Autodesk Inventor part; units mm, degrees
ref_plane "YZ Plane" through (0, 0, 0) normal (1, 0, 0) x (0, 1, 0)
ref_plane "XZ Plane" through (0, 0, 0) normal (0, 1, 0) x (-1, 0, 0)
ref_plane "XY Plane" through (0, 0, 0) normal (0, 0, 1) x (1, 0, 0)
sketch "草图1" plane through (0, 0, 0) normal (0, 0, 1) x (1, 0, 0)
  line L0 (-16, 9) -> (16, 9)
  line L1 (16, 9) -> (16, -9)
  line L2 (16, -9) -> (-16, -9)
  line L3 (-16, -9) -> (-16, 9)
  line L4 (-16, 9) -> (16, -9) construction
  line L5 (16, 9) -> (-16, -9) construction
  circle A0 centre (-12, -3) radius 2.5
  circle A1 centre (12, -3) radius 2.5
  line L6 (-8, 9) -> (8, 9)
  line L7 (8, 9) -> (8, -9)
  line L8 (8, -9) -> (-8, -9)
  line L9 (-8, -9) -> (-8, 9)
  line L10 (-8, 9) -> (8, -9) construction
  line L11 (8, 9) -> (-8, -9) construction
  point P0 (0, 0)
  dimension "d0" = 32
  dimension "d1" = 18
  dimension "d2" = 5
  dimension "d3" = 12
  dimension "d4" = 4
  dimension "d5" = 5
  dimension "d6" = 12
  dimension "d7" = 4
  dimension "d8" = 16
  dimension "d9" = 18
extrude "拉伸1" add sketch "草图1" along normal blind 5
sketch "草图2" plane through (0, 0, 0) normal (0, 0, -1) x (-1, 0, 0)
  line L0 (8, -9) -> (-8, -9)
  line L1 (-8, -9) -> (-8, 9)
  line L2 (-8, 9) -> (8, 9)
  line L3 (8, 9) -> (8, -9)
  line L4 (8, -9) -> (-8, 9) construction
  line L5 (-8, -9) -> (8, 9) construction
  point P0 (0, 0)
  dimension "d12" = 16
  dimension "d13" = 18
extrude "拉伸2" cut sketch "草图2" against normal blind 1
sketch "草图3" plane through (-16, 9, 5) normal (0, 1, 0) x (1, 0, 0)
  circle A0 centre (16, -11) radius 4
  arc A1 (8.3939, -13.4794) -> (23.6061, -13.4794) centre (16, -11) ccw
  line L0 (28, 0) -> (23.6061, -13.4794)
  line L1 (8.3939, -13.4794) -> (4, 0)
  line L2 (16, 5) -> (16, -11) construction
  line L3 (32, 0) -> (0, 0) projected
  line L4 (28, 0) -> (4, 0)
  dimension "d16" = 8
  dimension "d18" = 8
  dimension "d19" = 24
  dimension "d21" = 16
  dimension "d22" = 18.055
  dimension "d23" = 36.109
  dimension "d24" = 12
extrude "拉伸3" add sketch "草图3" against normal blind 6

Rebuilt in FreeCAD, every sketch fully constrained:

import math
import FreeCAD as App
import Part
import Sketcher

V = App.Vector
Q = App.Units.Quantity


def add_polygon(sketch, points):
    """Adds a closed chain of lines whose ends are joined by coincident constraints."""
    first, n = sketch.GeometryCount, len(points)
    for a, b in zip(points, points[1:] + points[:1]):
        sketch.addGeometry(Part.LineSegment(App.Vector(*a, 0), App.Vector(*b, 0)), False)
    for i in range(n):
        sketch.addConstraint(Sketcher.Constraint("Coincident", first + i, 2, first + (i + 1) % n, 1))

doc = App.newDocument("Part")
body = doc.addObject("PartDesign::Body", "Body")

sketch1 = body.newObject("Sketcher::SketchObject", "Sketch")
sketch1.AttachmentSupport = (doc.getObject("XY_Plane"), [""])
sketch1.MapMode = "FlatFace"
add_polygon(sketch1, [(-16, 9), (-16, -9), (16, -9), (16, 9)])
sketch1.addGeometry(Part.Circle(V(-12, -3, 0), V(0, 0, 1), 2.5), False)
sketch1.addGeometry(Part.Circle(V(12, -3, 0), V(0, 0, 1), 2.5), False)
sketch1.addConstraint([
    Sketcher.Constraint("Vertical", 0),
    Sketcher.Constraint("Horizontal", 1),
    Sketcher.Constraint("Vertical", 2),
    Sketcher.Constraint("Horizontal", 3),
    Sketcher.Constraint("Equal", 4, 5),
    Sketcher.Constraint("Symmetric", 0, 2, 2, 2, -1, 1),
    Sketcher.Constraint("Symmetric", 4, 3, 5, 3, -2),
    Sketcher.Constraint("Diameter", 4, Q("5 mm")),
    Sketcher.Constraint("DistanceX", 1, 1, 1, 2, Q("32 mm")),
    Sketcher.Constraint("DistanceY", 0, 2, 0, 1, Q("18 mm")),
    Sketcher.Constraint("DistanceX", 4, 3, -1, 1, Q("12 mm")),
    Sketcher.Constraint("DistanceY", 5, 3, 2, 2, Q("12 mm")),
])
pad1 = body.newObject("PartDesign::Pad", "Pad")
pad1.Profile = sketch1
pad1.Length = 5

sketch2 = body.newObject("Sketcher::SketchObject", "Sketch001")
sketch2.AttachmentSupport = (doc.getObject("XY_Plane"), [""])
sketch2.MapMode = "FlatFace"
add_polygon(sketch2, [(8, -9), (-8, -9), (-8, 9), (8, 9)])
sketch2.addConstraint([
    Sketcher.Constraint("Horizontal", 0),
    Sketcher.Constraint("Vertical", 1),
    Sketcher.Constraint("Horizontal", 2),
    Sketcher.Constraint("Vertical", 3),
    Sketcher.Constraint("Symmetric", 0, 2, 2, 2, -1, 1),
    Sketcher.Constraint("DistanceX", 0, 2, 0, 1, Q("16 mm")),
    Sketcher.Constraint("DistanceY", 1, 1, 1, 2, Q("18 mm")),
])
pocket1 = body.newObject("PartDesign::Pocket", "Pocket")
pocket1.Profile = sketch2
pocket1.Length = 1
pocket1.Reversed = True

sketch3 = body.newObject("Sketcher::SketchObject", "Sketch002")
sketch3.AttachmentSupport = (doc.getObject("XZ_Plane"), [""])
sketch3.MapMode = "FlatFace"
sketch3.AttachmentOffset = App.Placement(V(0, 0, -9), App.Rotation())
sketch3.addGeometry([
    Part.LineSegment(V(-12, 5, 0), V(-7.6061, 18.4794, 0)),
    Part.ArcOfCircle(Part.Circle(V(0, 16, 0), V(0, 0, 1), 8.000011), math.radians(18.054684), math.radians(161.945316)),
    Part.LineSegment(V(7.6061, 18.4794, 0), V(12, 5, 0)),
    Part.LineSegment(V(12, 5, 0), V(-12, 5, 0)),
    Part.Circle(V(0, 16, 0), V(0, 0, 1), 4),
], False)
sketch3.addConstraint([
    Sketcher.Constraint("Tangent", 0, 2, 1, 2),
    Sketcher.Constraint("Tangent", 1, 1, 2, 1),
    Sketcher.Constraint("Coincident", 2, 2, 3, 1),
    Sketcher.Constraint("Coincident", 3, 2, 0, 1),
    Sketcher.Constraint("Horizontal", 3),
    Sketcher.Constraint("Coincident", 4, 3, 1, 3),
    Sketcher.Constraint("Symmetric", 0, 2, 1, 1, -2),
    Sketcher.Constraint("Diameter", 4, Q("8 mm")),
    Sketcher.Constraint("Radius", 1, Q("8 mm")),
    Sketcher.Constraint("DistanceX", 3, 2, 3, 1, Q("24 mm")),
    Sketcher.Constraint("DistanceY", -1, 1, 1, 3, Q("16 mm")),
    Sketcher.Constraint("DistanceY", -1, 1, 2, 2, Q("5 mm")),
])
pad2 = body.newObject("PartDesign::Pad", "Pad001")
pad2.Profile = sketch3
pad2.Length = 6

doc.recompute()
